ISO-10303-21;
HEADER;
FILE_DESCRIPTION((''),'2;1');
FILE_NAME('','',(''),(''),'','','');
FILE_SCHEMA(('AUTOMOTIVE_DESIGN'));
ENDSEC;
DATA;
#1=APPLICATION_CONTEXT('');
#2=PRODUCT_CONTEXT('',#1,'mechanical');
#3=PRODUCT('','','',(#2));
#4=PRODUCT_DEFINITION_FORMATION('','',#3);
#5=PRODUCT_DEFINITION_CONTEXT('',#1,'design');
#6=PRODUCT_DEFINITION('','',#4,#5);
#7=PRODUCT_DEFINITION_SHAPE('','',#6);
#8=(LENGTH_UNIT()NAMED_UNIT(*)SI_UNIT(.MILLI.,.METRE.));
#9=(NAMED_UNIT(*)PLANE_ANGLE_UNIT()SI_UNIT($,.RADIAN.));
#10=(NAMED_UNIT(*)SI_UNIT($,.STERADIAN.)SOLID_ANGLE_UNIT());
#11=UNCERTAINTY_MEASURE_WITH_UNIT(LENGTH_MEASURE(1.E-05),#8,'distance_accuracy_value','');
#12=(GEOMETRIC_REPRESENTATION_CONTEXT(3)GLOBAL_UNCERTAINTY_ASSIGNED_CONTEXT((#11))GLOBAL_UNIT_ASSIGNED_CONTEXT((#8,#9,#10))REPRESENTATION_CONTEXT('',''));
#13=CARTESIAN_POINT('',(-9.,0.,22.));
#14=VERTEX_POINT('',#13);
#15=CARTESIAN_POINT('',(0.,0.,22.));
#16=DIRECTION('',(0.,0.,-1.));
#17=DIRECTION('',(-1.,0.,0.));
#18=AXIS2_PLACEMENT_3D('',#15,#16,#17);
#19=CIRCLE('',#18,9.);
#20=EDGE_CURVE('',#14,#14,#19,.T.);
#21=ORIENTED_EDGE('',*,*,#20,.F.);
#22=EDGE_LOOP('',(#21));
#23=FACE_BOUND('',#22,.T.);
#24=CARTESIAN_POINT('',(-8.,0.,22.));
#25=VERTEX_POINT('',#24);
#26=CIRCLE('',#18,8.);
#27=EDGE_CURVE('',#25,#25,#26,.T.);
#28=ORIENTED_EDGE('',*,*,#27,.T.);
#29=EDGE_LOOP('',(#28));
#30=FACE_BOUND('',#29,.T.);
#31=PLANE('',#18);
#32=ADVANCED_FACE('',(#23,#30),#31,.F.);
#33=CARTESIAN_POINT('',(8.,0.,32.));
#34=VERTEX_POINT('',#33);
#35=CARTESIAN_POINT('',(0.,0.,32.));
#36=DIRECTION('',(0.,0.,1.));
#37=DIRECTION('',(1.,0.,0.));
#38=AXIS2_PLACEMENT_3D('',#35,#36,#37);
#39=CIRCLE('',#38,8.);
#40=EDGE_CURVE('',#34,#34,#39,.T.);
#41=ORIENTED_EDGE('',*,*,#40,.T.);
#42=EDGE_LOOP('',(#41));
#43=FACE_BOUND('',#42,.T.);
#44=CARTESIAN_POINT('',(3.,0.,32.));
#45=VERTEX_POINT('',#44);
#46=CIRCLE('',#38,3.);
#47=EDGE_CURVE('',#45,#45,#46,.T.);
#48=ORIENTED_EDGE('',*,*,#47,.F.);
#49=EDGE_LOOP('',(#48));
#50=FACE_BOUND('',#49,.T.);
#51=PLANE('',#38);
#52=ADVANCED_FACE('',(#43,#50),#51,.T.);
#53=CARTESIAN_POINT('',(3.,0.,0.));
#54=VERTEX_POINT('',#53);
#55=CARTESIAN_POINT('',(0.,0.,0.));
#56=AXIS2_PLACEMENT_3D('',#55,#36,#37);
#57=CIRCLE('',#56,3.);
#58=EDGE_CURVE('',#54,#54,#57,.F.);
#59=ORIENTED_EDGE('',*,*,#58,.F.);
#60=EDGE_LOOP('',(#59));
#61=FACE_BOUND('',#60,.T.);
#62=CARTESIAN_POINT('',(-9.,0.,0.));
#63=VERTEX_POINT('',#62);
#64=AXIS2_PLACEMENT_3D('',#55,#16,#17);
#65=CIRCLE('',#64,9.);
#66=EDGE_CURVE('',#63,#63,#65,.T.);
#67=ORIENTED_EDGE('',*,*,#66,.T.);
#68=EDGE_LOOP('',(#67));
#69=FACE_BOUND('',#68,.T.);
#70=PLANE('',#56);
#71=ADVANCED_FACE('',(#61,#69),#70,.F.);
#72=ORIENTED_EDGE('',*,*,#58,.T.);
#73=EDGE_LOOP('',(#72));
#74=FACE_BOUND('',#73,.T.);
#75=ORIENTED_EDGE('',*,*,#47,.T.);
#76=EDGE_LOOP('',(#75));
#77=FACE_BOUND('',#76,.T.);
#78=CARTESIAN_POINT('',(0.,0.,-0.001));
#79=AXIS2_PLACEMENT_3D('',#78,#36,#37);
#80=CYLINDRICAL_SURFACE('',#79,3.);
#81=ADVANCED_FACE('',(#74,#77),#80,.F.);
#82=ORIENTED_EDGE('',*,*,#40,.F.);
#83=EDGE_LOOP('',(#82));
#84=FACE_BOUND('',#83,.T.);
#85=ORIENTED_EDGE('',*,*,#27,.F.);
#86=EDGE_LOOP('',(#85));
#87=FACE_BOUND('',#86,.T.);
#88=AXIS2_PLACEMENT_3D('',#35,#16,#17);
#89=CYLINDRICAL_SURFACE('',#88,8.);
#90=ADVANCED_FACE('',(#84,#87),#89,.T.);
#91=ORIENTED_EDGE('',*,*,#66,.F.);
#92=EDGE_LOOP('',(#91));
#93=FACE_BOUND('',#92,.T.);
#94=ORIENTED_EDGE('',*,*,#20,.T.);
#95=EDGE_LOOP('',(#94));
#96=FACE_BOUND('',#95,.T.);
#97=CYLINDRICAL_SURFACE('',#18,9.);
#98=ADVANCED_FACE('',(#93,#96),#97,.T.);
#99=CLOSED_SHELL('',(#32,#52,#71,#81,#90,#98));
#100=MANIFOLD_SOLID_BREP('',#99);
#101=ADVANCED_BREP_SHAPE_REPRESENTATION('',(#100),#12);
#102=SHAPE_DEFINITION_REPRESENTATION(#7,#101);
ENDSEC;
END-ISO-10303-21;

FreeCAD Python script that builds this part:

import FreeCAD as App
import Part
import Sketcher

V = App.Vector

doc = App.newDocument("Part")
body = doc.addObject("PartDesign::Body", "Body")

# Sketch on XY plane
sketch1 = doc.addObject("Sketcher::SketchObject", "Sketch")
body.addObject(sketch1)
sketch1.AttachmentSupport = (doc.XY_Plane, [""])
sketch1.MapMode = "FlatFace"
sketch1.addGeometry(Part.Circle(V(0, 0, 0), V(0, 0, 1), 8), False)
sketch1.addConstraint([
    Sketcher.Constraint("Coincident", 0, 3, -1, 1),
    Sketcher.Constraint("Diameter", 0, 16.0),
])
pad1 = doc.addObject("PartDesign::Pad", "Pad")
body.addObject(pad1)
pad1.Profile = sketch1
pad1.Length = 32

# Sketch on XY plane
sketch2 = doc.addObject("Sketcher::SketchObject", "Sketch001")
body.addObject(sketch2)
sketch2.AttachmentSupport = (doc.XY_Plane, [""])
sketch2.MapMode = "FlatFace"
sketch2.addGeometry(Part.Circle(V(0, 0, 0), V(0, 0, 1), 9), False)
sketch2.addConstraint([
    Sketcher.Constraint("Coincident", 0, 3, -1, 1),
    Sketcher.Constraint("Diameter", 0, 18.0),
])
pad2 = doc.addObject("PartDesign::Pad", "Pad001")
body.addObject(pad2)
pad2.Profile = sketch2
pad2.Length = 22

# Sketch on XY plane
sketch3 = doc.addObject("Sketcher::SketchObject", "Sketch002")
body.addObject(sketch3)
sketch3.AttachmentSupport = (doc.XY_Plane, [""])
sketch3.MapMode = "FlatFace"
sketch3.AttachmentOffset = App.Placement(V(0, 0, 32), App.Rotation())
sketch3.addGeometry(Part.Circle(V(0, 0, 0), V(0, 0, 1), 3), False)
sketch3.addConstraint([
    Sketcher.Constraint("Coincident", 0, 3, -1, 1),
    Sketcher.Constraint("Diameter", 0, 6.0),
])
pocket1 = doc.addObject("PartDesign::Pocket", "Pocket")
body.addObject(pocket1)
pocket1.Profile = sketch3
pocket1.Type = "UpToFirst"

doc.recompute()
